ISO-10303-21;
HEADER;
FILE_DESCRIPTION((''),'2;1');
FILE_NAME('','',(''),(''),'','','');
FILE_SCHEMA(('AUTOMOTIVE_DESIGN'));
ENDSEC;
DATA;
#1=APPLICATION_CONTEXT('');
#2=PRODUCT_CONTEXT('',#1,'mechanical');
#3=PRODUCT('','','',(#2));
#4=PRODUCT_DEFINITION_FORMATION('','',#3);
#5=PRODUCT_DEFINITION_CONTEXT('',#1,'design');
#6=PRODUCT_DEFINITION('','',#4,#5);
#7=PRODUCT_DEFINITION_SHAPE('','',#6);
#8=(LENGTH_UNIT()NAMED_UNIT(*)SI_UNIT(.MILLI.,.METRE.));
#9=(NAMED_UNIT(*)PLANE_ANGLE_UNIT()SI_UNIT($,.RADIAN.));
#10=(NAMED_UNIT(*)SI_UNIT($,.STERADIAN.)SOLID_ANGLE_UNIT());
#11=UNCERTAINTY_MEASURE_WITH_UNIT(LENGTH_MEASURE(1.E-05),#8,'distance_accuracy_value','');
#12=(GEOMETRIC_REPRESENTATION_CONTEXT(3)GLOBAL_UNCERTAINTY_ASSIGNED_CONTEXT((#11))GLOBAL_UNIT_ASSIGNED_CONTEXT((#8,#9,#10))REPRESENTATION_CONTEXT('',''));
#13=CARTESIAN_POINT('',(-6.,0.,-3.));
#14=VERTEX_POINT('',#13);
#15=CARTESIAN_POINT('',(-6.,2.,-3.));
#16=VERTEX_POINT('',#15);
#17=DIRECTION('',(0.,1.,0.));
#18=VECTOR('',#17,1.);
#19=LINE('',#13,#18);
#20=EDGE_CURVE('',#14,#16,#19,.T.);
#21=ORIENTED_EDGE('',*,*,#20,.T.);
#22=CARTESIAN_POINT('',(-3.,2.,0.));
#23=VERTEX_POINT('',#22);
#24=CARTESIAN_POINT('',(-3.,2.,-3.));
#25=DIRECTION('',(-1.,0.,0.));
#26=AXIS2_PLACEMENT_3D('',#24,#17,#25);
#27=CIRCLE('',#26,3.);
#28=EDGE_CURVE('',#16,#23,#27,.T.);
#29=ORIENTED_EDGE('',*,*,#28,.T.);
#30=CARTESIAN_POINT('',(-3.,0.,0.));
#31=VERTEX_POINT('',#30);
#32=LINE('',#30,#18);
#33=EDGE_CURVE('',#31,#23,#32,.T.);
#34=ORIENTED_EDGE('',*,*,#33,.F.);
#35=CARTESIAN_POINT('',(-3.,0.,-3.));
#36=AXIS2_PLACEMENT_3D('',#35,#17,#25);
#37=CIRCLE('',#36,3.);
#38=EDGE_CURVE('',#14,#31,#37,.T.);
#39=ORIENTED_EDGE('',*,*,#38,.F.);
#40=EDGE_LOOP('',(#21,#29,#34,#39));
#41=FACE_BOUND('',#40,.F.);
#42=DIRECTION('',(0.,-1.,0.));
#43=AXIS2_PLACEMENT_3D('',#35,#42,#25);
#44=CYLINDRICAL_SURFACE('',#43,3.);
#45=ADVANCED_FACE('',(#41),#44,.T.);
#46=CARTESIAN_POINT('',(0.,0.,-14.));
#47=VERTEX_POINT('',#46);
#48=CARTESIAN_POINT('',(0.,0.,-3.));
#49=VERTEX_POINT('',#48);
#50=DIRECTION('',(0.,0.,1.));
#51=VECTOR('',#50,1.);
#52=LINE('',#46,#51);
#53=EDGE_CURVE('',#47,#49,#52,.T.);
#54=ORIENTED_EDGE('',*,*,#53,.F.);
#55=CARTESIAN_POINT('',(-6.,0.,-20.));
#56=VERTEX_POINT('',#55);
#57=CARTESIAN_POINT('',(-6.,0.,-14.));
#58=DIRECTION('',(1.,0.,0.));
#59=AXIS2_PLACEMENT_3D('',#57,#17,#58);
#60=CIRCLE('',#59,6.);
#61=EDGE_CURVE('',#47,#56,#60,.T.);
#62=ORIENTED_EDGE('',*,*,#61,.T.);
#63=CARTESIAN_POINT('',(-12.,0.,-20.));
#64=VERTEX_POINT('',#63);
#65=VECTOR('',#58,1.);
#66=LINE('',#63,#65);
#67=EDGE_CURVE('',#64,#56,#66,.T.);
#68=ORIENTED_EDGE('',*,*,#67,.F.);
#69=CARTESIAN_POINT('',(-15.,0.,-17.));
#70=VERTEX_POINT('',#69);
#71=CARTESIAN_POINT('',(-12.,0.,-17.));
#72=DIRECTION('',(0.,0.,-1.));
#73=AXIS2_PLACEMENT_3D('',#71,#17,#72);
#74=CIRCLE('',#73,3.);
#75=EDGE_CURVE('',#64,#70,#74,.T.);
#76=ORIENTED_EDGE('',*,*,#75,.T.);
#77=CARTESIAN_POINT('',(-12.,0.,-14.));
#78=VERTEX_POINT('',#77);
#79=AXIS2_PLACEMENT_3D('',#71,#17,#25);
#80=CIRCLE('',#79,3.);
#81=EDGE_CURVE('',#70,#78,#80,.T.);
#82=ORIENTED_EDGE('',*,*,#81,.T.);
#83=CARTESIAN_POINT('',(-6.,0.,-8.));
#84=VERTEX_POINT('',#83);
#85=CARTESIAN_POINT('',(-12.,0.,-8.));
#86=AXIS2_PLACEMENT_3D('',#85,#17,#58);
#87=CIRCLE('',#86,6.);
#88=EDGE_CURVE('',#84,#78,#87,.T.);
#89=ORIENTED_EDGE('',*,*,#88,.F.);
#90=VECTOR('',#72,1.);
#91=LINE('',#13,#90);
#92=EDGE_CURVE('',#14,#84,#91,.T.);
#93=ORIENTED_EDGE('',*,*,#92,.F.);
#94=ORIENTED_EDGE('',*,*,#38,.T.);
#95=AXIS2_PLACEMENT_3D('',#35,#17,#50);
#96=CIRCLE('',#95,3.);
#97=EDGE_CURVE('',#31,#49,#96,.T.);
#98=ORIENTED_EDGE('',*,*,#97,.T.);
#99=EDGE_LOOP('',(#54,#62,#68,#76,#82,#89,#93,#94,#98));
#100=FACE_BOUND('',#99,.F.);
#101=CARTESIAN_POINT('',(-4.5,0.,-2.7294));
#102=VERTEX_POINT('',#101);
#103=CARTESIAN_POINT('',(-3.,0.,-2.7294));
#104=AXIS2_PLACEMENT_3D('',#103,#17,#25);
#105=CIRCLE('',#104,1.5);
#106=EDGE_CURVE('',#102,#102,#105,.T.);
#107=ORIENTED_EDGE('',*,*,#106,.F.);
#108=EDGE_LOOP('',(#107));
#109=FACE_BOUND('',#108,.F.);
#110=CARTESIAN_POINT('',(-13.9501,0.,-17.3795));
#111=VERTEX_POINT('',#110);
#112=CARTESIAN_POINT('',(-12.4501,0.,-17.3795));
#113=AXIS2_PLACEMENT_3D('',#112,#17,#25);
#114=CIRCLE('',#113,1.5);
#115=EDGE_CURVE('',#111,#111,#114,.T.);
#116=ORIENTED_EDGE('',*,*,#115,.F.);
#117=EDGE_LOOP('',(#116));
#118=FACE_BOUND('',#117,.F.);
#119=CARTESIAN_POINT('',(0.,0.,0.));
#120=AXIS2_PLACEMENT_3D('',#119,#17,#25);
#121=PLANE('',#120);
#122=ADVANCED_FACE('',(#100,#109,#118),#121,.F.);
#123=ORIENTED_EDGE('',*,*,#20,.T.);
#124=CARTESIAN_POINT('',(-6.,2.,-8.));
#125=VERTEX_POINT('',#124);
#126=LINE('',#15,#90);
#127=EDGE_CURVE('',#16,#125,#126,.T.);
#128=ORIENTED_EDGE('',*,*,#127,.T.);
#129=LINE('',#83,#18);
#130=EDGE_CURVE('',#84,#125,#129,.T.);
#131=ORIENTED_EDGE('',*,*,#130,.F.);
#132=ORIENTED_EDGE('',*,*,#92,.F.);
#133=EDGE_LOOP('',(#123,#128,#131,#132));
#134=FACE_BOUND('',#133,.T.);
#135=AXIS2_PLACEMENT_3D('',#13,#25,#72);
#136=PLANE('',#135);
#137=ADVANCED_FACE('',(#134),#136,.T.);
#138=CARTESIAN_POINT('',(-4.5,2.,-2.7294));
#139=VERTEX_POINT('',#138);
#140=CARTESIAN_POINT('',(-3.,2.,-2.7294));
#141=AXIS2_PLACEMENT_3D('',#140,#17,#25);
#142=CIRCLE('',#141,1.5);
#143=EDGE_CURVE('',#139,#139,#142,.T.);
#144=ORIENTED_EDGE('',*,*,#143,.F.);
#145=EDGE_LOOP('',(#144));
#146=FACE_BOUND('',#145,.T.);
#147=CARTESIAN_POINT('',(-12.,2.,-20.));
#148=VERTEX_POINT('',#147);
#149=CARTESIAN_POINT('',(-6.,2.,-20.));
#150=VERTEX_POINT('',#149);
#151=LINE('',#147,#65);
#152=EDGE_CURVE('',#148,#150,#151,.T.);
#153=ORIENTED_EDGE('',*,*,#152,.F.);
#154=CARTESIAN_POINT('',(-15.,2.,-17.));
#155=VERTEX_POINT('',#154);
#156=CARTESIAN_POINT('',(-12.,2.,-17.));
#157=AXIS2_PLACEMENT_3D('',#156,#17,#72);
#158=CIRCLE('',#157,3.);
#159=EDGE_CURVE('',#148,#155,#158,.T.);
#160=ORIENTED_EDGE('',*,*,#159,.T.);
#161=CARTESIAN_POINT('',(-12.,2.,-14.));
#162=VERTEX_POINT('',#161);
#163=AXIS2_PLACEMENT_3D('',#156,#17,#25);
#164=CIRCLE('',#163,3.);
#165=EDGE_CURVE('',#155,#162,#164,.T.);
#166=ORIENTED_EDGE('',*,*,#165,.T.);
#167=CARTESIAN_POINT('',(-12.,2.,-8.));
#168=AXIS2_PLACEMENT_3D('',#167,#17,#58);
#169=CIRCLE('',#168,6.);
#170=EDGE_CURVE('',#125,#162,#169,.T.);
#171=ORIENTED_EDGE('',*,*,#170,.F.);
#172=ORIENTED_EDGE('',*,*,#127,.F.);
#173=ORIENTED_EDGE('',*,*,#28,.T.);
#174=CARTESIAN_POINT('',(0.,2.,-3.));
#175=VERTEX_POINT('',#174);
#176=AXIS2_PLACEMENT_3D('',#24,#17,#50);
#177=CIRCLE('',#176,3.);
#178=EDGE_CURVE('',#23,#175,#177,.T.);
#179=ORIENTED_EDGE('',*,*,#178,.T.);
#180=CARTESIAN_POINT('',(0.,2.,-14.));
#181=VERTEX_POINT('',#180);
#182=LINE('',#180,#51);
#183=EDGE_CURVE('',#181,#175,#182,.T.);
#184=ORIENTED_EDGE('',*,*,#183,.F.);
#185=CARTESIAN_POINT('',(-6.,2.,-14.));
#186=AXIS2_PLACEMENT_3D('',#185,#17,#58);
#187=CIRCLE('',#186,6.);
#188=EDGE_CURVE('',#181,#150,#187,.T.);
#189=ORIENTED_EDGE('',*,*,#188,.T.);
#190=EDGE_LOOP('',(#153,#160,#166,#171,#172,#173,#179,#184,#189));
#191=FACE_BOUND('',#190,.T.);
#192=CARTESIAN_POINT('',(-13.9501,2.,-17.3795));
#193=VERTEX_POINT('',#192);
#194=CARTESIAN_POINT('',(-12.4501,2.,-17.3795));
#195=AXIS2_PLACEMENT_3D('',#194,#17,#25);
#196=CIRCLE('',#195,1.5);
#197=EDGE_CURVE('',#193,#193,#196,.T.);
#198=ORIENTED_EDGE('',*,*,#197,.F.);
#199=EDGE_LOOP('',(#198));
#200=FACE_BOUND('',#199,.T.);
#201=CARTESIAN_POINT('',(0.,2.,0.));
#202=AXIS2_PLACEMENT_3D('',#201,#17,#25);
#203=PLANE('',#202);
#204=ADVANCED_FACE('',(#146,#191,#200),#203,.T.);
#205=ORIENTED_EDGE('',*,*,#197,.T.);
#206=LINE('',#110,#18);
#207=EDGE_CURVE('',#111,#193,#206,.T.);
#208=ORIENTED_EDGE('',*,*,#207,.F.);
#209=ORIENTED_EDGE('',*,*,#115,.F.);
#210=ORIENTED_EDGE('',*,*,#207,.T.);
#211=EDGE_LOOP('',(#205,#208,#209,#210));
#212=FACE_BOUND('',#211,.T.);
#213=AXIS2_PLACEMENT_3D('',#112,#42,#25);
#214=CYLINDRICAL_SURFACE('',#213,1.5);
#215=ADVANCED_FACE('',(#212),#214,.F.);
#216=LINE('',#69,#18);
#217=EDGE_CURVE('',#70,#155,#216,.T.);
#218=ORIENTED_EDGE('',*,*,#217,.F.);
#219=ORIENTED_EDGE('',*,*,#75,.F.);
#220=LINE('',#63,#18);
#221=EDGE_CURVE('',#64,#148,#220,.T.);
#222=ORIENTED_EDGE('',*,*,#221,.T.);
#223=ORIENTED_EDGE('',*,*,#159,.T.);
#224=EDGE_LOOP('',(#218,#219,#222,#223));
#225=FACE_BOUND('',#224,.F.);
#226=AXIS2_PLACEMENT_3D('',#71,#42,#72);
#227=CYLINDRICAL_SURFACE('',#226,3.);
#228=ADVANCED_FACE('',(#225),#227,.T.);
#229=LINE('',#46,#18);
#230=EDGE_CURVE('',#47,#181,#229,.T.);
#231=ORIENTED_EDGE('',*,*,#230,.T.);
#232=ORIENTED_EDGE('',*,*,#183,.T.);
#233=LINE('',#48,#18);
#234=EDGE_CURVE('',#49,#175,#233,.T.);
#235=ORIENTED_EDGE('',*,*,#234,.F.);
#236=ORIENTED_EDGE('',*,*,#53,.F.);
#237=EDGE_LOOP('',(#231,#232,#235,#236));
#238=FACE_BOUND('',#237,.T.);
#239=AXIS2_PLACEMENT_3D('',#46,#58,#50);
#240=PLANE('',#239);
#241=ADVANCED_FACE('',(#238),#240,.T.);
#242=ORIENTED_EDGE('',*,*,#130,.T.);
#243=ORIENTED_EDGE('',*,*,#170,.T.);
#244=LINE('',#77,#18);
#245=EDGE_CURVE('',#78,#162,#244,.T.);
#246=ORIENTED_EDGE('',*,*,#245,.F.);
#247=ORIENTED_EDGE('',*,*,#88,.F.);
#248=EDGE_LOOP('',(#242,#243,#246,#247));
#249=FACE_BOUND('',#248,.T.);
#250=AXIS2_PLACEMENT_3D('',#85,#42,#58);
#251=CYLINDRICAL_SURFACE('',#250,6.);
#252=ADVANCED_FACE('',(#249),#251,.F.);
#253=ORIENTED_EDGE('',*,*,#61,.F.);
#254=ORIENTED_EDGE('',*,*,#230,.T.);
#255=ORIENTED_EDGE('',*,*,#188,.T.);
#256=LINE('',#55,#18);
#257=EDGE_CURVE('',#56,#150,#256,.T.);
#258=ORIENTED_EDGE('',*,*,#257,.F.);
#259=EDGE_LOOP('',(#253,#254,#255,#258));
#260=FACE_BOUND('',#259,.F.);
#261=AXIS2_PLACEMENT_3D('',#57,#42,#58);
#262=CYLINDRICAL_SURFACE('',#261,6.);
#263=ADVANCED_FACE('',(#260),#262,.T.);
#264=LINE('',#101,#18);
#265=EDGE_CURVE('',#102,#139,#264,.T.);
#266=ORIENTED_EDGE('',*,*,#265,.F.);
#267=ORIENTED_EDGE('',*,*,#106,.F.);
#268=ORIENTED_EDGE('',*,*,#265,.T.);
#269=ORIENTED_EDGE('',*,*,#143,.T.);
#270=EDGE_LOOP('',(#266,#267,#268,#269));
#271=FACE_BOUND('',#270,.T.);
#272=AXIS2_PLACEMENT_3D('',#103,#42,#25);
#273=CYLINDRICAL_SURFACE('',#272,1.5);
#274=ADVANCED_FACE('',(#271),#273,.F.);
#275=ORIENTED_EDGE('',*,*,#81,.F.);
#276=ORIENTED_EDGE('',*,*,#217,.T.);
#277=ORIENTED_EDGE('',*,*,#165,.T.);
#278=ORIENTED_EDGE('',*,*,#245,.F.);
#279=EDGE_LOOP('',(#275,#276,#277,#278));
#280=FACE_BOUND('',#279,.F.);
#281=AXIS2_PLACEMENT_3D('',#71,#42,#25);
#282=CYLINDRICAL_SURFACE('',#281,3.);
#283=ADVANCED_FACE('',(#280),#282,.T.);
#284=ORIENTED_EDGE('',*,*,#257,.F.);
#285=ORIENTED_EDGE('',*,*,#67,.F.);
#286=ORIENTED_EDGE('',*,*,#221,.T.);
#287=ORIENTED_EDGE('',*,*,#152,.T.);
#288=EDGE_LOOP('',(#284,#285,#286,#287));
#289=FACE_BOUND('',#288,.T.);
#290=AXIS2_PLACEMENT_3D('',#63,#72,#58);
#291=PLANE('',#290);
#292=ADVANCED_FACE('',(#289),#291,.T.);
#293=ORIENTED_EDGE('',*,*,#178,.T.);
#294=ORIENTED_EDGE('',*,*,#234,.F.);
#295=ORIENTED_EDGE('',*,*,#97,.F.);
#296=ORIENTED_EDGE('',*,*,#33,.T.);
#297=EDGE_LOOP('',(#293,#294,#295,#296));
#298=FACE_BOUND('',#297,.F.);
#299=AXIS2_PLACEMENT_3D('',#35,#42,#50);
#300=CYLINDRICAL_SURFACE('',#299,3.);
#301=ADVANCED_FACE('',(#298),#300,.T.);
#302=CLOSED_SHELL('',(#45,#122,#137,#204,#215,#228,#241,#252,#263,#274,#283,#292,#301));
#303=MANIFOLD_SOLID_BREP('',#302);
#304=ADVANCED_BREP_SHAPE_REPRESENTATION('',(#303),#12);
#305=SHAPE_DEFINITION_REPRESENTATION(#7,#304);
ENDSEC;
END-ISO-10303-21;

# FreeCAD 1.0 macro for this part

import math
import FreeCAD as App
import Part
import Sketcher
Q = App.Units.Quantity

doc = App.newDocument("Part")
body = doc.addObject("PartDesign::Body", "Body")

# Sketch on XZ plane
sketch1 = doc.addObject("Sketcher::SketchObject", "Sketch")
body.addObject(sketch1)
sketch1.AttachmentSupport = (doc.XZ_Plane, [""])
sketch1.MapMode = "FlatFace"
sketch1.addGeometry(Part.LineSegment(App.Vector(-6, -20, 0), App.Vector(-12, -20, 0)), False)
sketch1.addGeometry(Part.ArcOfCircle(Part.Circle(App.Vector(-12, -17, 0), App.Vector(0, 0, 1), 3), math.radians(90), math.radians(270)), False)
sketch1.addGeometry(Part.ArcOfCircle(Part.Circle(App.Vector(-12, -8, 0), App.Vector(0, 0, 1), 6), math.radians(-90), math.radians(0)), False)
sketch1.addGeometry(Part.LineSegment(App.Vector(-6, -8, 0), App.Vector(-6, -3, 0)), False)
sketch1.addGeometry(Part.ArcOfCircle(Part.Circle(App.Vector(-3, -3, 0), App.Vector(0, 0, 1), 3), math.radians(0), math.radians(180)), False)
sketch1.addGeometry(Part.LineSegment(App.Vector(0, -3, 0), App.Vector(0, -14, 0)), False)
sketch1.addGeometry(Part.ArcOfCircle(Part.Circle(App.Vector(-6, -14, 0), App.Vector(0, 0, 1), 6), math.radians(-90), math.radians(0)), False)
sketch1.addGeometry(Part.Circle(App.Vector(-12.5, -17.4, 0), App.Vector(0, 0, 1), 1.5), False)
sketch1.addGeometry(Part.Circle(App.Vector(-3, -2.7, 0), App.Vector(0, 0, 1), 1.5), False)
sketch1.addConstraint(Sketcher.Constraint("Tangent", 0, 2, 1, 2))
sketch1.addConstraint(Sketcher.Constraint("Tangent", 1, 1, 2, 1))
sketch1.addConstraint(Sketcher.Constraint("Tangent", 2, 2, 3, 1))
sketch1.addConstraint(Sketcher.Constraint("Tangent", 3, 2, 4, 2))
sketch1.addConstraint(Sketcher.Constraint("Tangent", 4, 1, 5, 1))
sketch1.addConstraint(Sketcher.Constraint("Tangent", 5, 2, 6, 2))
sketch1.addConstraint(Sketcher.Constraint("Tangent", 6, 1, 0, 1))
sketch1.addConstraint(Sketcher.Constraint("Horizontal", 0))
sketch1.addConstraint(Sketcher.Constraint("Vertical", 3))
sketch1.addConstraint(Sketcher.Constraint("Vertical", 5))
sketch1.addConstraint(Sketcher.Constraint("Equal", 1, 4))
sketch1.addConstraint(Sketcher.Constraint("Equal", 2, 6))
sketch1.addConstraint(Sketcher.Constraint("Equal", 7, 8))
sketch1.addConstraint(Sketcher.Constraint("PointOnObject", 4, 1, -2))
sketch1.addConstraint(Sketcher.Constraint("Horizontal", 6, 3, 1, 1))
sketch1.addConstraint(Sketcher.Constraint("Vertical", 1, 3, 2, 3))
sketch1.addConstraint(Sketcher.Constraint("Vertical", 4, 3, 8, 3))
sketch1.addConstraint(Sketcher.Constraint("Diameter", 7, Q("3 mm")))
sketch1.addConstraint(Sketcher.Constraint("Radius", 1, Q("3 mm")))
sketch1.addConstraint(Sketcher.Constraint("DistanceY", 4, 3, -1, 1, Q("3 mm")))
sketch1.addConstraint(Sketcher.Constraint("DistanceY", 0, 2, -1, 1, Q("20 mm")))
sketch1.addConstraint(Sketcher.Constraint("DistanceX", 7, 3, -1, 1, Q("12.45 mm")))
sketch1.addConstraint(Sketcher.Constraint("DistanceY", 7, 3, 8, 3, Q("14.65 mm")))
sketch1.addConstraint(Sketcher.Constraint("DistanceY", 7, 3, -1, 1, Q("17.3795 mm")))
pad1 = doc.addObject("PartDesign::Pad", "Pad")
body.addObject(pad1)
pad1.Profile = sketch1
pad1.Length = 2
pad1.Reversed = True

doc.recompute()
